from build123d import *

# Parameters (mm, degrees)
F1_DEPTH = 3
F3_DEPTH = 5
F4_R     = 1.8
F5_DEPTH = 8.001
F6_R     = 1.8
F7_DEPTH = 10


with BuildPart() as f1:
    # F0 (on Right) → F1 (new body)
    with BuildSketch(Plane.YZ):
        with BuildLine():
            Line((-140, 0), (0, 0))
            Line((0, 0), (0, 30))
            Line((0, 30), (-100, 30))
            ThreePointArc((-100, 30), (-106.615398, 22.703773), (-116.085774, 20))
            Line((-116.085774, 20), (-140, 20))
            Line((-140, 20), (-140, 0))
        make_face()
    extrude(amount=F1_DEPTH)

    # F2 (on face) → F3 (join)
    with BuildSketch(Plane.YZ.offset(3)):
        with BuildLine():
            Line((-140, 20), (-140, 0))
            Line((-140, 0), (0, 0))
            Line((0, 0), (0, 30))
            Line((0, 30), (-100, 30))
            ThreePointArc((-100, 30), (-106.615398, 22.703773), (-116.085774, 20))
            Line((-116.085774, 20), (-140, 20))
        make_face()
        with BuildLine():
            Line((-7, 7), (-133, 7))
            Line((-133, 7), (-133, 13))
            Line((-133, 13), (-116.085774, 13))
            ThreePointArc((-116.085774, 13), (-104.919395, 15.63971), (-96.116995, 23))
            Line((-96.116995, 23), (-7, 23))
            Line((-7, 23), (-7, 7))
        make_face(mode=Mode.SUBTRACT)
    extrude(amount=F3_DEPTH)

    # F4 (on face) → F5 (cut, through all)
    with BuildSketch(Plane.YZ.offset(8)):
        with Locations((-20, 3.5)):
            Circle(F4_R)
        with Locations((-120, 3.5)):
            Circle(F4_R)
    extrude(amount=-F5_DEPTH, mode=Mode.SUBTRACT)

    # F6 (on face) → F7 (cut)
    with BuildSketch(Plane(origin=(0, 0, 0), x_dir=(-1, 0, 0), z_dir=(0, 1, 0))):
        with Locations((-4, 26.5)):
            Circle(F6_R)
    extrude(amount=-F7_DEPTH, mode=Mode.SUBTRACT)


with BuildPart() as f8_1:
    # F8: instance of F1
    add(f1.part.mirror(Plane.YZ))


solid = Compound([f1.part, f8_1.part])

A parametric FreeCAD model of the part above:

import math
import FreeCAD as App
import Part
import Sketcher

V = App.Vector
Q = App.Units.Quantity

doc = App.newDocument("Part")
body = doc.addObject("PartDesign::Body", "Body")

# Sketch on YZ plane
sketch1 = body.newObject("Sketcher::SketchObject", "Sketch")
sketch1.AttachmentSupport = (doc.getObject("YZ_Plane"), [""])
sketch1.MapMode = "FlatFace"
sketch1.addGeometry(Part.LineSegment(V(-140, 0, 0), V(0, 0, 0)), False)
sketch1.addGeometry(Part.LineSegment(V(0, 0, 0), V(0, 30, 0)), False)
sketch1.addGeometry(Part.LineSegment(V(0, 30, 0), V(-100, 30, 0)), False)
sketch1.addGeometry(Part.ArcOfCircle(Part.Circle(V(-116.085776, 37.93761, 0), V(0, 0, 1), 17.93761), math.radians(-89.999993), math.radians(-26.264274)), False)
sketch1.addGeometry(Part.LineSegment(V(-116.085774, 20, 0), V(-140, 20, 0)), False)
sketch1.addGeometry(Part.LineSegment(V(-140, 20, 0), V(-140, 0, 0)), False)
sketch1.addConstraint(Sketcher.Constraint("Coincident", 0, 2, 1, 1))
sketch1.addConstraint(Sketcher.Constraint("Coincident", 1, 2, 2, 1))
sketch1.addConstraint(Sketcher.Constraint("Coincident", 2, 2, 3, 2))
sketch1.addConstraint(Sketcher.Constraint("Tangent", 3, 1, 4, 1))
sketch1.addConstraint(Sketcher.Constraint("Coincident", 4, 2, 5, 1))
sketch1.addConstraint(Sketcher.Constraint("Coincident", 5, 2, 0, 1))
sketch1.addConstraint(Sketcher.Constraint("Horizontal", 0))
sketch1.addConstraint(Sketcher.Constraint("Vertical", 1))
sketch1.addConstraint(Sketcher.Constraint("Horizontal", 2))
sketch1.addConstraint(Sketcher.Constraint("Horizontal", 4))
sketch1.addConstraint(Sketcher.Constraint("Vertical", 5))
sketch1.addConstraint(Sketcher.Constraint("Coincident", 0, 2, -1, 1))
sketch1.addConstraint(Sketcher.Constraint("DistanceX", 0, 1, 0, 2, Q("140 mm")))
sketch1.addConstraint(Sketcher.Constraint("DistanceX", 2, 2, 2, 1, Q("100 mm")))
sketch1.addConstraint(Sketcher.Constraint("DistanceY", 1, 1, 1, 2, Q("30 mm")))
sketch1.addConstraint(Sketcher.Constraint("DistanceY", 5, 2, 5, 1, Q("20 mm")))
sketch1.addConstraint(Sketcher.Constraint("Radius", 3, Q("17.93761 mm")))
pad1 = body.newObject("PartDesign::Pad", "Pad")
pad1.Profile = sketch1
pad1.Length = 3

# Sketch on YZ plane
sketch2 = body.newObject("Sketcher::SketchObject", "Sketch001")
sketch2.AttachmentSupport = (doc.getObject("YZ_Plane"), [""])
sketch2.MapMode = "FlatFace"
sketch2.AttachmentOffset = App.Placement(V(0, 0, 3), App.Rotation())
sketch2.addGeometry(Part.LineSegment(V(-140, 20, 0), V(-140, 0, 0)), False)
sketch2.addGeometry(Part.LineSegment(V(-140, 0, 0), V(0, 0, 0)), False)
sketch2.addGeometry(Part.LineSegment(V(0, 0, 0), V(0, 30, 0)), False)
sketch2.addGeometry(Part.LineSegment(V(0, 30, 0), V(-100, 30, 0)), False)
sketch2.addGeometry(Part.ArcOfCircle(Part.Circle(V(-116.085776, 37.93761, 0), V(0, 0, 1), 17.93761), math.radians(-89.999993), math.radians(-26.264274)), False)
sketch2.addGeometry(Part.LineSegment(V(-116.085774, 20, 0), V(-140, 20, 0)), False)
sketch2.addGeometry(Part.LineSegment(V(-7, 23, 0), V(-7, 7, 0)), False)
sketch2.addGeometry(Part.LineSegment(V(-7, 7, 0), V(-133, 7, 0)), False)
sketch2.addGeometry(Part.LineSegment(V(-133, 7, 0), V(-133, 13, 0)), False)
sketch2.addGeometry(Part.LineSegment(V(-133, 13, 0), V(-116.085774, 13, 0)), False)
sketch2.addGeometry(Part.ArcOfCircle(Part.Circle(V(-116.085775, 37.937609, 0), V(0, 0, 1), 24.937609), math.radians(-89.999998), math.radians(-36.798257)), False)
sketch2.addGeometry(Part.LineSegment(V(-96.116995, 23, 0), V(-7, 23, 0)), False)
sketch2.addConstraint(Sketcher.Constraint("Coincident", 0, 2, 1, 1))
sketch2.addConstraint(Sketcher.Constraint("Coincident", 1, 2, 2, 1))
sketch2.addConstraint(Sketcher.Constraint("Coincident", 2, 2, 3, 1))
sketch2.addConstraint(Sketcher.Constraint("Coincident", 3, 2, 4, 2))
sketch2.addConstraint(Sketcher.Constraint("Tangent", 4, 1, 5, 1))
sketch2.addConstraint(Sketcher.Constraint("Coincident", 5, 2, 0, 1))
sketch2.addConstraint(Sketcher.Constraint("Coincident", 6, 2, 7, 1))
sketch2.addConstraint(Sketcher.Constraint("Coincident", 7, 2, 8, 1))
sketch2.addConstraint(Sketcher.Constraint("Coincident", 8, 2, 9, 1))
sketch2.addConstraint(Sketcher.Constraint("Tangent", 9, 2, 10, 1))
sketch2.addConstraint(Sketcher.Constraint("Coincident", 10, 2, 11, 1))
sketch2.addConstraint(Sketcher.Constraint("Coincident", 11, 2, 6, 1))
sketch2.addConstraint(Sketcher.Constraint("Vertical", 0))
sketch2.addConstraint(Sketcher.Constraint("Horizontal", 1))
sketch2.addConstraint(Sketcher.Constraint("Vertical", 2))
sketch2.addConstraint(Sketcher.Constraint("Horizontal", 3))
sketch2.addConstraint(Sketcher.Constraint("Horizontal", 5))
sketch2.addConstraint(Sketcher.Constraint("Vertical", 6))
sketch2.addConstraint(Sketcher.Constraint("Horizontal", 7))
sketch2.addConstraint(Sketcher.Constraint("Vertical", 8))
sketch2.addConstraint(Sketcher.Constraint("Horizontal", 9))
sketch2.addConstraint(Sketcher.Constraint("Horizontal", 11))
sketch2.addConstraint(Sketcher.Constraint("Coincident", 1, 2, -1, 1))
sketch2.addConstraint(Sketcher.Constraint("Coincident", 10, 3, 4, 3))
sketch2.addConstraint(Sketcher.Constraint("DistanceX", 1, 1, 1, 2, Q("140 mm")))
sketch2.addConstraint(Sketcher.Constraint("DistanceX", 3, 2, 3, 1, Q("100 mm")))
sketch2.addConstraint(Sketcher.Constraint("DistanceX", 7, 2, 7, 1, Q("126 mm")))
sketch2.addConstraint(Sketcher.Constraint("DistanceY", 0, 2, 0, 1, Q("20 mm")))
sketch2.addConstraint(Sketcher.Constraint("DistanceY", 2, 1, 2, 2, Q("30 mm")))
sketch2.addConstraint(Sketcher.Constraint("DistanceY", 6, 2, 6, 1, Q("16 mm")))
sketch2.addConstraint(Sketcher.Constraint("DistanceY", 8, 1, 8, 2, Q("6 mm")))
sketch2.addConstraint(Sketcher.Constraint("DistanceX", 6, 2, -1, 1, Q("7 mm")))
sketch2.addConstraint(Sketcher.Constraint("DistanceY", -1, 1, 6, 2, Q("7 mm")))
sketch2.addConstraint(Sketcher.Constraint("Radius", 4, Q("17.93761 mm")))
pad2 = body.newObject("PartDesign::Pad", "Pad001")
pad2.Profile = sketch2
pad2.Length = 5

# Sketch on YZ plane
sketch3 = body.newObject("Sketcher::SketchObject", "Sketch002")
sketch3.AttachmentSupport = (doc.getObject("YZ_Plane"), [""])
sketch3.MapMode = "FlatFace"
sketch3.AttachmentOffset = App.Placement(V(0, 0, 8), App.Rotation())
sketch3.addGeometry(Part.Circle(V(-20, 3.5, 0), V(0, 0, 1), 1.8), False)
sketch3.addGeometry(Part.Circle(V(-120, 3.5, 0), V(0, 0, 1), 1.8), False)
sketch3.addConstraint(Sketcher.Constraint("Equal", 0, 1))
sketch3.addConstraint(Sketcher.Constraint("Horizontal", 0, 3, 1, 3))
sketch3.addConstraint(Sketcher.Constraint("Diameter", 0, Q("3.6 mm")))
sketch3.addConstraint(Sketcher.Constraint("DistanceX", 0, 3, -1, 1, Q("20 mm")))
sketch3.addConstraint(Sketcher.Constraint("DistanceX", 1, 3, -1, 1, Q("120 mm")))
sketch3.addConstraint(Sketcher.Constraint("DistanceY", -1, 1, 0, 3, Q("3.5 mm")))
pocket1 = body.newObject("PartDesign::Pocket", "Pocket")
pocket1.Profile = sketch3
pocket1.Type = "ThroughAll"

# Sketch on XZ plane
sketch4 = body.newObject("Sketcher::SketchObject", "Sketch003")
sketch4.AttachmentSupport = (doc.getObject("XZ_Plane"), [""])
sketch4.MapMode = "FlatFace"
sketch4.addGeometry(Part.Circle(V(4, 26.5, 0), V(0, 0, 1), 1.8), False)
sketch4.addConstraint(Sketcher.Constraint("Diameter", 0, Q("3.6 mm")))
sketch4.addConstraint(Sketcher.Constraint("DistanceX", -1, 1, 0, 3, Q("4 mm")))
sketch4.addConstraint(Sketcher.Constraint("DistanceY", -1, 1, 0, 3, Q("26.5 mm")))
pocket2 = body.newObject("PartDesign::Pocket", "Pocket001")
pocket2.Profile = sketch4
pocket2.Length = 10
pocket2.Reversed = True
body2 = doc.addObject("PartDesign::Body", "Body001")
doc.recompute()

mirroring = doc.addObject("Part::Mirroring", "Mirroring")
mirroring.Source = body
mirroring.Base = V(0, 0, 0)
mirroring.Normal = V(1, 0, 0)
body2.BaseFeature = mirroring
doc.recompute()
mirroring.Visibility = False

doc.recompute()
